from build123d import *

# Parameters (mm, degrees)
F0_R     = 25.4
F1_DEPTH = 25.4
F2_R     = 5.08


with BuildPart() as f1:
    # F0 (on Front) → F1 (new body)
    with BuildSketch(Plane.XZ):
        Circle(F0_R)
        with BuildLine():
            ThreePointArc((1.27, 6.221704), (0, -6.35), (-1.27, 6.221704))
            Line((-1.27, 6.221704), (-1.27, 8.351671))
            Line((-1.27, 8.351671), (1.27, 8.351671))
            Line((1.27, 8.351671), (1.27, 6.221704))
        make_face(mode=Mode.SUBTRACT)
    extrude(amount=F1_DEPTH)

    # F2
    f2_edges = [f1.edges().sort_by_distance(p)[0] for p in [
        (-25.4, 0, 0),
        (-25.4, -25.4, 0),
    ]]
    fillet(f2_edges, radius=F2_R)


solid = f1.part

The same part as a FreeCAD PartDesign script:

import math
import FreeCAD as App
import Part
import Sketcher

V = App.Vector
Q = App.Units.Quantity


def edges_at(feature, points):
    """Names of the edges that pass closest to the given points."""
    edges = feature.Shape.Edges
    near = lambda p: min(range(len(edges)), key=lambda i: edges[i].distToShape(Part.Vertex(*p))[0])
    return sorted({f"Edge{near(p) + 1}" for p in points})

doc = App.newDocument("Part")
body = doc.addObject("PartDesign::Body", "Body")

# Sketch on XZ plane
sketch1 = body.newObject("Sketcher::SketchObject", "Sketch")
sketch1.AttachmentSupport = (doc.getObject("XZ_Plane"), [""])
sketch1.MapMode = "FlatFace"
sketch1.addGeometry([
    Part.Circle(V(0, 0, 0), V(0, 0, 1), 25.4),  # 0
    Part.LineSegment(V(1.27, 8.351671, 0), V(1.27, 6.221704, 0)),  # 1
    Part.ArcOfCircle(Part.Circle(V(0, 0, 0), V(0, 0, 1), 6.35), math.radians(101.536959), math.radians(438.463041)),  # 2
    Part.LineSegment(V(-1.27, 6.221704, 0), V(-1.27, 8.351671, 0)),  # 3
    Part.LineSegment(V(-1.27, 8.351671, 0), V(1.27, 8.351671, 0)),  # 4
], False)
sketch1.addConstraint([
    Sketcher.Constraint("Coincident", 1, 2, 2, 2),
    Sketcher.Constraint("Coincident", 2, 1, 3, 1),
    Sketcher.Constraint("Coincident", 3, 2, 4, 1),
    Sketcher.Constraint("Coincident", 4, 2, 1, 1),
    Sketcher.Constraint("Vertical", 1),
    Sketcher.Constraint("Vertical", 3),
    Sketcher.Constraint("Horizontal", 4),
    Sketcher.Constraint("Coincident", 0, 3, -1, 1),
    Sketcher.Constraint("Coincident", 2, 3, -1, 1),
    Sketcher.Constraint("Horizontal", 1, 2, 2, 1),
    Sketcher.Constraint("Diameter", 0, Q("2 in")),
    Sketcher.Constraint("Radius", 2, Q("0.25 in")),
    Sketcher.Constraint("DistanceX", 4, 1, 4, 2, Q("0.1 in")),
    Sketcher.Constraint("DistanceY", 1, 2, 1, 1, Q("2.129967 mm")),
])
pad1 = body.newObject("PartDesign::Pad", "Pad")
pad1.Profile = sketch1
pad1.Length = Q("1 in")
doc.recompute()

fillet = body.newObject("PartDesign::Fillet", "Fillet")
fillet.Base = (pad1, edges_at(pad1, [(-25.4, 0, 0), (-25.4, -25.4, 0)]))
fillet.Radius = Q("0.2 in")

doc.recompute()
